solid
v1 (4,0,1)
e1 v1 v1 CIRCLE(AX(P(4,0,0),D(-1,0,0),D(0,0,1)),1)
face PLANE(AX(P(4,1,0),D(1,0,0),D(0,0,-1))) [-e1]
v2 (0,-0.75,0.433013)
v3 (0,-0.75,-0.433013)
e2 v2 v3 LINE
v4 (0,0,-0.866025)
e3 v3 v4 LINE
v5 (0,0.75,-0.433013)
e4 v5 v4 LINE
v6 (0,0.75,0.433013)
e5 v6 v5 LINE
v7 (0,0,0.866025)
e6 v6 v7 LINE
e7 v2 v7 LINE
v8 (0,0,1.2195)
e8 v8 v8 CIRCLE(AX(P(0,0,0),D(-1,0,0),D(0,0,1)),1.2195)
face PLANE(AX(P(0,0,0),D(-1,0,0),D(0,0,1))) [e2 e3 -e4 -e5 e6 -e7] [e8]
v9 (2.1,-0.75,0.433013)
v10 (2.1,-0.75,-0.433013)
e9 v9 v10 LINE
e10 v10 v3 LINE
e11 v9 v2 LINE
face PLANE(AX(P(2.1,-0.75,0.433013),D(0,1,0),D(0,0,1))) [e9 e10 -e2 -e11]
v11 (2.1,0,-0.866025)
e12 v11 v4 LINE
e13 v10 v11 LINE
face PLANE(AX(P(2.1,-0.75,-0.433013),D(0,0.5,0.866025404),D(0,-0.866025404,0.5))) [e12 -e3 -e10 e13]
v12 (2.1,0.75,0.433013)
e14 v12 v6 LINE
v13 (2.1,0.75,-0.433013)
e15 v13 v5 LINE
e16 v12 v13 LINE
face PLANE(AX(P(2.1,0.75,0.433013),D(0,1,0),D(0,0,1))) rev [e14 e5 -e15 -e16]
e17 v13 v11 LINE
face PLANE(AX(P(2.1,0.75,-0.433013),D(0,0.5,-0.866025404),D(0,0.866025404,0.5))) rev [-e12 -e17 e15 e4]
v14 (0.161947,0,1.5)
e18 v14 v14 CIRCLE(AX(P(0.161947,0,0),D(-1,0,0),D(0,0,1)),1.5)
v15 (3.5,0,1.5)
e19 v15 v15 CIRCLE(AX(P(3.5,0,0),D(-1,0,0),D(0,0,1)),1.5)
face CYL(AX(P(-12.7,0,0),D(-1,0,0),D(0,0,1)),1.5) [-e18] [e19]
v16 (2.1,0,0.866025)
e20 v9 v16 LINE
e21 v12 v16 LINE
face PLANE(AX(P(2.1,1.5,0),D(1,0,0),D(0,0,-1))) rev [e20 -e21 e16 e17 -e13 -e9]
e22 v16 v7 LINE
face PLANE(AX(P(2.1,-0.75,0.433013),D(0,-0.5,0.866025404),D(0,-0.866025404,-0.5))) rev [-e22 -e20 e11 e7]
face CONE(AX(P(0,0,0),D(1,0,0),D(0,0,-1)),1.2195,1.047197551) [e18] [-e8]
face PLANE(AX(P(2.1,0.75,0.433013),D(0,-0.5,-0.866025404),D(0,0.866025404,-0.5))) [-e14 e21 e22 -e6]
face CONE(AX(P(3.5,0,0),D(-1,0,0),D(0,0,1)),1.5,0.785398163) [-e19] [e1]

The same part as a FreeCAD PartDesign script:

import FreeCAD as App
import Part
import Sketcher
Q = App.Units.Quantity

doc = App.newDocument("Part")
body = doc.addObject("PartDesign::Body", "Body")

# Sketch on XY plane
sketch1 = doc.addObject("Sketcher::SketchObject", "Sketch")
body.addObject(sketch1)
sketch1.AttachmentSupport = (doc.XY_Plane, [""])
sketch1.MapMode = "FlatFace"
sketch1.addGeometry([
    Part.LineSegment(App.Vector(0, 1.22, 0), App.Vector(0, 0, 0)),  # 0
    Part.LineSegment(App.Vector(0, 0, 0), App.Vector(4, 0, 0)),  # 1
    Part.LineSegment(App.Vector(4, 0, 0), App.Vector(4, 1, 0)),  # 2
    Part.LineSegment(App.Vector(4, 1, 0), App.Vector(3.5, 1.5, 0)),  # 3
    Part.LineSegment(App.Vector(3.5, 1.5, 0), App.Vector(0.16, 1.5, 0)),  # 4
    Part.LineSegment(App.Vector(0.16, 1.5, 0), App.Vector(0, 1.22, 0)),  # 5
], False)
sketch1.addConstraint([
    Sketcher.Constraint("Coincident", 0, 2, 1, 1),
    Sketcher.Constraint("Coincident", 1, 2, 2, 1),
    Sketcher.Constraint("Coincident", 2, 2, 3, 1),
    Sketcher.Constraint("Coincident", 3, 2, 4, 1),
    Sketcher.Constraint("Coincident", 4, 2, 5, 1),
    Sketcher.Constraint("Coincident", 5, 2, 0, 1),
    Sketcher.Constraint("Vertical", 0),
    Sketcher.Constraint("Horizontal", 1),
    Sketcher.Constraint("Vertical", 2),
    Sketcher.Constraint("Horizontal", 4),
    Sketcher.Constraint("Coincident", 0, 2, -1, 1),
    Sketcher.Constraint("DistanceX", 1, 1, 1, 2, 4.0),
    Sketcher.Constraint("DistanceY", 2, 1, 2, 2, 1.0),
    Sketcher.Constraint("Angle", 3, Q("135 deg")),
    Sketcher.Constraint("Angle", 5, Q("-120 deg")),
    Sketcher.Constraint("DistanceX", -1, 1, 3, 2, 3.5),
    Sketcher.Constraint("DistanceY", 0, 2, 0, 1, 1.2195),
])
revolution = doc.addObject("PartDesign::Revolution", "Revolution")
body.addObject(revolution)
revolution.Profile = sketch1
revolution.ReferenceAxis = (sketch1, ["H_Axis"])
revolution.Angle = 360

# Sketch on YZ plane
sketch2 = doc.addObject("Sketcher::SketchObject", "Sketch001")
body.addObject(sketch2)
sketch2.AttachmentSupport = (doc.YZ_Plane, [""])
sketch2.MapMode = "FlatFace"
sketch2.addGeometry([
    Part.LineSegment(App.Vector(0.8, 0.4, 0), App.Vector(0.8, -0.4, 0)),  # 0
    Part.LineSegment(App.Vector(0.8, -0.4, 0), App.Vector(0, -0.9, 0)),  # 1
    Part.LineSegment(App.Vector(0, -0.9, 0), App.Vector(-0.8, -0.4, 0)),  # 2
    Part.LineSegment(App.Vector(-0.8, -0.4, 0), App.Vector(-0.8, 0.4, 0)),  # 3
    Part.LineSegment(App.Vector(-0.8, 0.4, 0), App.Vector(0, 0.9, 0)),  # 4
    Part.LineSegment(App.Vector(0, 0.9, 0), App.Vector(0.8, 0.4, 0)),  # 5
], False)
sketch2.addConstraint([
    Sketcher.Constraint("Coincident", 0, 2, 1, 1),
    Sketcher.Constraint("Coincident", 1, 2, 2, 1),
    Sketcher.Constraint("Coincident", 2, 2, 3, 1),
    Sketcher.Constraint("Coincident", 3, 2, 4, 1),
    Sketcher.Constraint("Coincident", 4, 2, 5, 1),
    Sketcher.Constraint("Coincident", 5, 2, 0, 1),
    Sketcher.Constraint("Vertical", 0),
    Sketcher.Constraint("Vertical", 3),
    Sketcher.Constraint("Symmetric", 0, 2, 3, 2, -1, 1),
    Sketcher.Constraint("Symmetric", 1, 2, 4, 2, -1, 1),
    Sketcher.Constraint("PointOnObject", 1, 2, -2),
    Sketcher.Constraint("Parallel", 2, 5),
    Sketcher.Constraint("Horizontal", 0, 2, 2, 2),
    Sketcher.Constraint("Angle", 1, Q("-150 deg")),
    Sketcher.Constraint("DistanceX", 2, 2, 0, 2, 1.5),
    Sketcher.Constraint("DistanceY", 0, 2, 0, 1, 0.866025),
])
pocket1 = doc.addObject("PartDesign::Pocket", "Pocket")
body.addObject(pocket1)
pocket1.Profile = sketch2
pocket1.Length = 2.1
pocket1.Reversed = True

doc.recompute()
